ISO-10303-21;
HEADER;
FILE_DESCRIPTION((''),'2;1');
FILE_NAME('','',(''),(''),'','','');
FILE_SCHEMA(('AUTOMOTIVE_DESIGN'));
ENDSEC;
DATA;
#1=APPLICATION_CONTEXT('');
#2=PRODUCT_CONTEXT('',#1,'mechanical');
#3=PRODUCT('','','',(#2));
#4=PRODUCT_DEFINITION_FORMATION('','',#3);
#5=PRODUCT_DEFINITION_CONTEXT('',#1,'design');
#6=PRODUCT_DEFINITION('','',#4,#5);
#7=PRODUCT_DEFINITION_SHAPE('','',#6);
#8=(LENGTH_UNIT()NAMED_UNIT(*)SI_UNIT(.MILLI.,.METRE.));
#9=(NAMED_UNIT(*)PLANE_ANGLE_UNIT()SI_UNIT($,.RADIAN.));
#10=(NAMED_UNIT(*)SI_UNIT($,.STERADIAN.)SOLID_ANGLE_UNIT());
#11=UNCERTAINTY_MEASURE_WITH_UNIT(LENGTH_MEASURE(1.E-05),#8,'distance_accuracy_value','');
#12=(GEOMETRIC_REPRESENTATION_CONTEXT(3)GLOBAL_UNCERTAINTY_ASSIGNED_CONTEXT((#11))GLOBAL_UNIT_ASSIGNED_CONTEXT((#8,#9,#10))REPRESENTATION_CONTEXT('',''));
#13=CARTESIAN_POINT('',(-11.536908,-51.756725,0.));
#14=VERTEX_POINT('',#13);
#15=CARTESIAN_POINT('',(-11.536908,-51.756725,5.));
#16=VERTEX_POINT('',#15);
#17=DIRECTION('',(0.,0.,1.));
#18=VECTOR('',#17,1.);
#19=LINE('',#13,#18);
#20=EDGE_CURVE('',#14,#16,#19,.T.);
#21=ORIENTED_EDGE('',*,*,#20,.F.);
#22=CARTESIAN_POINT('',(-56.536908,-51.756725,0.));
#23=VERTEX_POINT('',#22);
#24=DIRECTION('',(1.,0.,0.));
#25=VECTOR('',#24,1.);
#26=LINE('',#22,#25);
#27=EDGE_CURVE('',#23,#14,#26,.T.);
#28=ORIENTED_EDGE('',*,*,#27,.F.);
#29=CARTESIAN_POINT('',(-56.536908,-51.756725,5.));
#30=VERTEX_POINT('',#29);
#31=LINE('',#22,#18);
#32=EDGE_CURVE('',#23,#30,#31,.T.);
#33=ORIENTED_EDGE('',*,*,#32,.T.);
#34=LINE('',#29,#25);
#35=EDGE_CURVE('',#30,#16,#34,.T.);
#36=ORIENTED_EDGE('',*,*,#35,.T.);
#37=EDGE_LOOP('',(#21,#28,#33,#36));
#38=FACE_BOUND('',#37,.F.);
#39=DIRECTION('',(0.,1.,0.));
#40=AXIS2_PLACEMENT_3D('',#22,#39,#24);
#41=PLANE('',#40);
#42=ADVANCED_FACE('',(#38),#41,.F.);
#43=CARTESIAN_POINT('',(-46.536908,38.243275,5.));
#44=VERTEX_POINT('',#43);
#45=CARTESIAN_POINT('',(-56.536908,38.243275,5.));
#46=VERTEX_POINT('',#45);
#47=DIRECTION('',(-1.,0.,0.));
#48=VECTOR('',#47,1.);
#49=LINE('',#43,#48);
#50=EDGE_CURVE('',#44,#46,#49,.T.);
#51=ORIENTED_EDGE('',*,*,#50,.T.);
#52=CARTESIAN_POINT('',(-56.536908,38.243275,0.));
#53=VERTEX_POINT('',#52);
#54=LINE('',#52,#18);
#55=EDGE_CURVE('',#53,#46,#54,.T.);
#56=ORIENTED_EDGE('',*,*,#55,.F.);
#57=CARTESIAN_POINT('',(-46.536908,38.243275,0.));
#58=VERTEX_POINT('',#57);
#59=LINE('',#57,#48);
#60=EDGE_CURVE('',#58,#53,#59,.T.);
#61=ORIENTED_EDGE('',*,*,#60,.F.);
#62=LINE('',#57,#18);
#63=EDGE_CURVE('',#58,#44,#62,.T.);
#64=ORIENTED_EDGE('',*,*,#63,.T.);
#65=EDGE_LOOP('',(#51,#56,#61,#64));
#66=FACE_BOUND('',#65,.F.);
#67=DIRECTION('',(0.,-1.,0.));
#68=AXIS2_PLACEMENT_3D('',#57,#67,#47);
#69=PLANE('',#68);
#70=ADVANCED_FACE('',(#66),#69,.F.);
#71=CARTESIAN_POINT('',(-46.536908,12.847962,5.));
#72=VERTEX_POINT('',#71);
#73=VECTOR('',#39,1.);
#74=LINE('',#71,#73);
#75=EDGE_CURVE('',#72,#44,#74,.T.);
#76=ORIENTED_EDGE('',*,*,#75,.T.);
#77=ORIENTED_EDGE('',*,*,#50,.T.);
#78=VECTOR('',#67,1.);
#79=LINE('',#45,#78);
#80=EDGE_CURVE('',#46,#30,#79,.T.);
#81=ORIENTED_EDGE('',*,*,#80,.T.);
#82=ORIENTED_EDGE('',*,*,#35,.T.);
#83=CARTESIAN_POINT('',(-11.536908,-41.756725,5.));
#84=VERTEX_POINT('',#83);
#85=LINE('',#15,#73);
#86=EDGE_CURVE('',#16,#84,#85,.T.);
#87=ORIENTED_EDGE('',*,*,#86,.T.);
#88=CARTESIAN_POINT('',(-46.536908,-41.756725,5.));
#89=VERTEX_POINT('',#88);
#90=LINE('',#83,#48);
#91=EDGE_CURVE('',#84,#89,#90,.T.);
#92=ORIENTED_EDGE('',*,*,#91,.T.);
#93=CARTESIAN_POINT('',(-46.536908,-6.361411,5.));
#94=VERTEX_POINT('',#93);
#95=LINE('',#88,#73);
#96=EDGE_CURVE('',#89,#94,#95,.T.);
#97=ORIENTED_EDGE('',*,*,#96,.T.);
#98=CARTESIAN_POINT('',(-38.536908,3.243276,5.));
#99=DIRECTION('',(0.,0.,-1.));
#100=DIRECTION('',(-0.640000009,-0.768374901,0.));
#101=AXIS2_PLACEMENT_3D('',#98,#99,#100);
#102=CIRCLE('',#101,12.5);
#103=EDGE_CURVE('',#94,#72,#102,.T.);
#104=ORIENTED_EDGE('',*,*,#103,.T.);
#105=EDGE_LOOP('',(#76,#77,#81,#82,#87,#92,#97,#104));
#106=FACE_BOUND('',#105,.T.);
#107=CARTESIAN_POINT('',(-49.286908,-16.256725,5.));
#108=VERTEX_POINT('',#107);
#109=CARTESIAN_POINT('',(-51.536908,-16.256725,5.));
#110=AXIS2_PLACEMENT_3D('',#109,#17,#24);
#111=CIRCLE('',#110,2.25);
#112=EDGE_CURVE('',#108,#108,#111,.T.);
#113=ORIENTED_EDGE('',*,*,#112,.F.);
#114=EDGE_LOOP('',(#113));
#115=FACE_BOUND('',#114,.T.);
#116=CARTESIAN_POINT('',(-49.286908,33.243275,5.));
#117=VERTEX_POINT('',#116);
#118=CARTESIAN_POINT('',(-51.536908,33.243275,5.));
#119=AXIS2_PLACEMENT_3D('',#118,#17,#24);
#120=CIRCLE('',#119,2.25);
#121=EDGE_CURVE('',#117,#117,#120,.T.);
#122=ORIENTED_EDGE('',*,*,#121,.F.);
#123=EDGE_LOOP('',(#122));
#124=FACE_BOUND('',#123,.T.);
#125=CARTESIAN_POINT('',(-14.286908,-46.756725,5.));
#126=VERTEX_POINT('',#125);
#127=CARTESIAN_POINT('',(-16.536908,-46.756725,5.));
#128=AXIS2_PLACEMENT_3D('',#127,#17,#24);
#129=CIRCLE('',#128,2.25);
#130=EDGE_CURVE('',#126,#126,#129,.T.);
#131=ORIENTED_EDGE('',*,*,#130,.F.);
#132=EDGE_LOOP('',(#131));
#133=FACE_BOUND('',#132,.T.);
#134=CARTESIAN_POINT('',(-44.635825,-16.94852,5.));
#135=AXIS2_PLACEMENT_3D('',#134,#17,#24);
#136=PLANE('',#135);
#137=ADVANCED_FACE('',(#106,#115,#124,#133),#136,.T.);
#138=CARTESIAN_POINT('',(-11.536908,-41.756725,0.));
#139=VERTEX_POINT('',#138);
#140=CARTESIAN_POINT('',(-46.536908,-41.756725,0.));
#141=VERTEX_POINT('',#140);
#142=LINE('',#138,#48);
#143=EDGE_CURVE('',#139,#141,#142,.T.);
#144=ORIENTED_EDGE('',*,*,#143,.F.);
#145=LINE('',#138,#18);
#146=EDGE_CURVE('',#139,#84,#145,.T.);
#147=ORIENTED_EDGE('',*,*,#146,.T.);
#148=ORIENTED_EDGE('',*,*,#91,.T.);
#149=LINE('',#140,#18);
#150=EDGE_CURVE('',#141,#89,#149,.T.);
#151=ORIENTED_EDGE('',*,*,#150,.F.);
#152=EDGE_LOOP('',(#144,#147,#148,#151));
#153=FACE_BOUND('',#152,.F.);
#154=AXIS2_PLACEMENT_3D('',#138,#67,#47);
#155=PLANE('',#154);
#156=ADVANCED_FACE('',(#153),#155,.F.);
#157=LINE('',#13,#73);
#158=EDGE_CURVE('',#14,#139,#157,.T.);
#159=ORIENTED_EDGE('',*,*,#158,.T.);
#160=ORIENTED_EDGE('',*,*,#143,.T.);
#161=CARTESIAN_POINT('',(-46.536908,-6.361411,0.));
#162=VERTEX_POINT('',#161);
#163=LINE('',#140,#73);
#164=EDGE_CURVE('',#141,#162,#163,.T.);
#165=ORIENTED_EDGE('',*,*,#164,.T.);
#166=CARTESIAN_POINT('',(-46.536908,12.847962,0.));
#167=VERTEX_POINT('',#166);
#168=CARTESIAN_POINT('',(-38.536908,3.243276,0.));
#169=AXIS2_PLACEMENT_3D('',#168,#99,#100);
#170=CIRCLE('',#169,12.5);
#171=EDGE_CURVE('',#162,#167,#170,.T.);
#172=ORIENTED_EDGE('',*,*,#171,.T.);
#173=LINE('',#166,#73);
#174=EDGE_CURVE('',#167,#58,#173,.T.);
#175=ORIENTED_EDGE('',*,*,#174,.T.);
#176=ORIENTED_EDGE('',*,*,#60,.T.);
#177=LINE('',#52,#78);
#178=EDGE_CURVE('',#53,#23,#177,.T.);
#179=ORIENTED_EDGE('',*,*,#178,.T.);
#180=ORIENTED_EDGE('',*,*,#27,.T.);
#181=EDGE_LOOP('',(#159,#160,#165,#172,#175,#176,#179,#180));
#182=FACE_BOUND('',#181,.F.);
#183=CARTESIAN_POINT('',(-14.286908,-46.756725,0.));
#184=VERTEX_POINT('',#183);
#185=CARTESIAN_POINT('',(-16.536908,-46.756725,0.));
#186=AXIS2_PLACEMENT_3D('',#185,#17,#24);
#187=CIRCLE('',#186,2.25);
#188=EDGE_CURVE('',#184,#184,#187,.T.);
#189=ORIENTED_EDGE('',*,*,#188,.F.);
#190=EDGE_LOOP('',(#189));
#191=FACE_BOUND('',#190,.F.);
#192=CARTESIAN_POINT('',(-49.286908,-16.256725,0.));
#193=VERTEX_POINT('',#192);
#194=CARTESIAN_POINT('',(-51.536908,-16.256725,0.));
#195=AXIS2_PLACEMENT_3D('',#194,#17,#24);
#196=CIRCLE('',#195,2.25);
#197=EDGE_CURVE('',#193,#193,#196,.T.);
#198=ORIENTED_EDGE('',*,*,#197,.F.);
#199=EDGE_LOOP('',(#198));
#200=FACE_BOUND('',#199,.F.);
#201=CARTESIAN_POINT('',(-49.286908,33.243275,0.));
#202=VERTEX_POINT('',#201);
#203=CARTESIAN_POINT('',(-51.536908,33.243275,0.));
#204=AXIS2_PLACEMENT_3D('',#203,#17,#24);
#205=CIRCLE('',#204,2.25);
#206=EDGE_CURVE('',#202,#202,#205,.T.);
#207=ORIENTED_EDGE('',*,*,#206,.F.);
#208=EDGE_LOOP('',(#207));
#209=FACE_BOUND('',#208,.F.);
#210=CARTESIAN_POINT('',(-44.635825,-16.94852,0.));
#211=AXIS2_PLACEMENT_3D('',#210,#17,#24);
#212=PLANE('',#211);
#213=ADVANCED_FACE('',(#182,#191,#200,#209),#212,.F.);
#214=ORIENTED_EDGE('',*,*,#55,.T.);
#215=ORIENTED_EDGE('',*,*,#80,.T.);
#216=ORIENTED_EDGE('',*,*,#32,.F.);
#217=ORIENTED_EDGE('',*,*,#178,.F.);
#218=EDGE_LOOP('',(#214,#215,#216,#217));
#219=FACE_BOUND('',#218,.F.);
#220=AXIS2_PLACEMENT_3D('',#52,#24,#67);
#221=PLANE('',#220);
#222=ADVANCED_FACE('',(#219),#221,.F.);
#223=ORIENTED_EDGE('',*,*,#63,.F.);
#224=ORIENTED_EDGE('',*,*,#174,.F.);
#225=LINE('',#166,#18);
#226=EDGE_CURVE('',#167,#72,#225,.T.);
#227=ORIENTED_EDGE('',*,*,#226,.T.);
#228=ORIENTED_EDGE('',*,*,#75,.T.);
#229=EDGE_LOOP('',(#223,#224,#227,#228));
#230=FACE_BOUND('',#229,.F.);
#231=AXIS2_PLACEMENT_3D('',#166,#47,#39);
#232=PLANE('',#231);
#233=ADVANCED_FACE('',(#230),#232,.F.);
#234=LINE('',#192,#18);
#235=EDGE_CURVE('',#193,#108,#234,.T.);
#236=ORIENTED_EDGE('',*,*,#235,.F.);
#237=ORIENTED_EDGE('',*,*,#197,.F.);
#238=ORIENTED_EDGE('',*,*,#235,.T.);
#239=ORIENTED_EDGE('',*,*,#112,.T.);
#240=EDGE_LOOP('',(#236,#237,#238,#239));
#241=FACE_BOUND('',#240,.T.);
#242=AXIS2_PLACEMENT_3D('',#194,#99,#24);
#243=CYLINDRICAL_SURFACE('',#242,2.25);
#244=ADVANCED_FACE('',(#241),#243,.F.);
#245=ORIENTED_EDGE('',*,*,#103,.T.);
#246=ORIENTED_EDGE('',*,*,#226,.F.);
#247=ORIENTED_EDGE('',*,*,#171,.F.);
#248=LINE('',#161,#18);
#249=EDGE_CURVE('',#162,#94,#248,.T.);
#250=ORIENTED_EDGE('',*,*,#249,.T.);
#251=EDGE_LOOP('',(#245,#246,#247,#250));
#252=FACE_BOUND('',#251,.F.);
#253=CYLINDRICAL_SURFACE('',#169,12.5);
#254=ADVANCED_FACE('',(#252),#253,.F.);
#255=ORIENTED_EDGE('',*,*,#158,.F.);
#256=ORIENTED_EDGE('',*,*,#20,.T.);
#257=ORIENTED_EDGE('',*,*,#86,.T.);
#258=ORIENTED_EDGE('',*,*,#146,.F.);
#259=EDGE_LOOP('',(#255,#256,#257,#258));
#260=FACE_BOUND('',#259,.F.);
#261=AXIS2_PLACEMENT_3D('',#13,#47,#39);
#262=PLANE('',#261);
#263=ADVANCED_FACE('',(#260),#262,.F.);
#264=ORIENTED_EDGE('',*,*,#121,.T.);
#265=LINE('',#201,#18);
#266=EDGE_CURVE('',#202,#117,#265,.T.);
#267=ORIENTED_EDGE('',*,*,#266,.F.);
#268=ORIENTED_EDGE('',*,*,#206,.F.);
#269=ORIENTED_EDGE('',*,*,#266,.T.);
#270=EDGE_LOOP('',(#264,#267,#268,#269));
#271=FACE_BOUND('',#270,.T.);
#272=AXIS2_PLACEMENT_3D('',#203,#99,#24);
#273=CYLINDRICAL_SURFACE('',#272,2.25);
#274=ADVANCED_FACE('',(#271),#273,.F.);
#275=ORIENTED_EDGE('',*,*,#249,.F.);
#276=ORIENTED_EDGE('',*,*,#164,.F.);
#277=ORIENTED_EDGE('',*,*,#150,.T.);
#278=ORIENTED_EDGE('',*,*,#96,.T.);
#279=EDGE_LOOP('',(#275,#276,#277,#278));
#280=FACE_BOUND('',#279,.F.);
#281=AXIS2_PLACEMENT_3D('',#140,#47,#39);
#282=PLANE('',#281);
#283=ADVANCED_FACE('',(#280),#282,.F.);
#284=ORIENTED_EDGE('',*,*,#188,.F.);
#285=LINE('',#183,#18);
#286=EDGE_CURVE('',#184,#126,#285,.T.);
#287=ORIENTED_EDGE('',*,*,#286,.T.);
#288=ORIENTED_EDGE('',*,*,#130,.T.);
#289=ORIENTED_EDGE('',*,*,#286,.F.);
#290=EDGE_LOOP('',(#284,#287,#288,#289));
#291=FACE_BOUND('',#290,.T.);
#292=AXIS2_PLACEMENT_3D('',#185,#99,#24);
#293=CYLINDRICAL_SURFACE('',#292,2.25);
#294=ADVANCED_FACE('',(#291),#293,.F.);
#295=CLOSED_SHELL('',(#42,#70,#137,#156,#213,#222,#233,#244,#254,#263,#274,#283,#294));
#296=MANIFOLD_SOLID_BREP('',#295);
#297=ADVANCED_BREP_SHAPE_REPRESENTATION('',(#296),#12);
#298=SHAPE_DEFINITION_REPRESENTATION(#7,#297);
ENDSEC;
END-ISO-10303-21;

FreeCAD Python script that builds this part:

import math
import FreeCAD as App
import Part
import Sketcher

V = App.Vector

doc = App.newDocument("Part")
body = doc.addObject("PartDesign::Body", "Body")

# Sketch on XY plane
sketch1 = doc.addObject("Sketcher::SketchObject", "Sketch")
body.addObject(sketch1)
sketch1.AttachmentSupport = (doc.XY_Plane, [""])
sketch1.MapMode = "FlatFace"
sketch1.addGeometry([
    Part.LineSegment(V(-46.5, 38.2, 0), V(-56.5, 38.2, 0)),  # 0
    Part.LineSegment(V(-56.5, 38.2, 0), V(-56.5, -51.8, 0)),  # 1
    Part.LineSegment(V(-56.5, -51.8, 0), V(-11.5, -51.8, 0)),  # 2
    Part.LineSegment(V(-11.5, -51.8, 0), V(-11.5, -41.8, 0)),  # 3
    Part.LineSegment(V(-11.5, -41.8, 0), V(-46.5, -41.8, 0)),  # 4
    Part.LineSegment(V(-46.5, -41.8, 0), V(-46.5, -6.4, 0)),  # 5
    Part.ArcOfCircle(Part.Circle(V(-38.5, 3.2, 0), V(0, 0, 1), 12.5), math.radians(130), math.radians(230)),  # 6
    Part.LineSegment(V(-46.5, 12.8, 0), V(-46.5, 38.2, 0)),  # 7
    Part.Circle(V(-51.5, -16.3, 0), V(0, 0, 1), 2.2),  # 8
    Part.Circle(V(-16.5, -46.8, 0), V(0, 0, 1), 2.2),  # 9
    Part.Circle(V(-51.5, 33.2, 0), V(0, 0, 1), 2.2),  # 10
], False)
sketch1.addConstraint([
    Sketcher.Constraint("Coincident", 0, 2, 1, 1),
    Sketcher.Constraint("Coincident", 1, 2, 2, 1),
    Sketcher.Constraint("Coincident", 2, 2, 3, 1),
    Sketcher.Constraint("Coincident", 3, 2, 4, 1),
    Sketcher.Constraint("Coincident", 4, 2, 5, 1),
    Sketcher.Constraint("Coincident", 5, 2, 6, 2),
    Sketcher.Constraint("Coincident", 6, 1, 7, 1),
    Sketcher.Constraint("Coincident", 7, 2, 0, 1),
    Sketcher.Constraint("Horizontal", 0),
    Sketcher.Constraint("Vertical", 1),
    Sketcher.Constraint("Horizontal", 2),
    Sketcher.Constraint("Vertical", 3),
    Sketcher.Constraint("Horizontal", 4),
    Sketcher.Constraint("Vertical", 5),
    Sketcher.Constraint("Vertical", 7),
    Sketcher.Constraint("Equal", 8, 9),
    Sketcher.Constraint("Equal", 9, 10),
    Sketcher.Constraint("Vertical", 8, 3, 10, 3),
    Sketcher.Constraint("Vertical", 5, 2, 6, 1),
    Sketcher.Constraint("Equal", 0, 3),
    Sketcher.Constraint("Diameter", 8, 4.5),
    Sketcher.Constraint("Radius", 6, 12.5),
    Sketcher.Constraint("DistanceX", 0, 2, 0, 1, 10.0),
    Sketcher.Constraint("DistanceX", 2, 1, 2, 2, 45.0),
    Sketcher.Constraint("DistanceY", 1, 2, 1, 1, 90.0),
    Sketcher.Constraint("DistanceX", 8, 3, 6, 3, 13.0),
    Sketcher.Constraint("DistanceX", 8, 3, 9, 3, 35.0),
    Sketcher.Constraint("DistanceY", 9, 3, 6, 3, 50.000001),
    Sketcher.Constraint("DistanceY", 6, 3, 10, 3, 29.999999),
    Sketcher.Constraint("DistanceX", 0, 2, 10, 3, 5.0),
    Sketcher.Constraint("DistanceY", 10, 3, 0, 2, 5.0),
    Sketcher.Constraint("DistanceY", 8, 3, 6, 3, 19.5),
    Sketcher.Constraint("DistanceX", 9, 3, -1, 1, 16.536908),
    Sketcher.Constraint("DistanceY", 5, 2, -1, 1, 6.361411),
])
pad1 = doc.addObject("PartDesign::Pad", "Pad")
body.addObject(pad1)
pad1.Profile = sketch1
pad1.Length = 5

doc.recompute()
